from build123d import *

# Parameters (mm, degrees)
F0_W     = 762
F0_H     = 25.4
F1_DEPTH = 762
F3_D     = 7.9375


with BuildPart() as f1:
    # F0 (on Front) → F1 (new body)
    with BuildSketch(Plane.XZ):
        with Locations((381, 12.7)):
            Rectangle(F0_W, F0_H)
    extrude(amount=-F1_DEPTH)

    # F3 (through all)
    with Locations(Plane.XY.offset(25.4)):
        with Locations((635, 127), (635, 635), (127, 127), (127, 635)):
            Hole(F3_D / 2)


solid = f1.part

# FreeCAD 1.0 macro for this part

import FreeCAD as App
import Part
import Sketcher
Q = App.Units.Quantity

doc = App.newDocument("Part")
body = doc.addObject("PartDesign::Body", "Body")

# Sketch on XZ plane
sketch1 = body.newObject("Sketcher::SketchObject", "Sketch")
sketch1.AttachmentSupport = (doc.getObject("XZ_Plane"), [""])
sketch1.MapMode = "FlatFace"
sketch1.addGeometry(Part.LineSegment(App.Vector(0, 25.4, 0), App.Vector(0, 0, 0)), False)
sketch1.addGeometry(Part.LineSegment(App.Vector(0, 0, 0), App.Vector(762, 0, 0)), False)
sketch1.addGeometry(Part.LineSegment(App.Vector(762, 0, 0), App.Vector(762, 25.4, 0)), False)
sketch1.addGeometry(Part.LineSegment(App.Vector(762, 25.4, 0), App.Vector(0, 25.4, 0)), False)
sketch1.addConstraint(Sketcher.Constraint("Coincident", 0, 2, 1, 1))
sketch1.addConstraint(Sketcher.Constraint("Coincident", 1, 2, 2, 1))
sketch1.addConstraint(Sketcher.Constraint("Coincident", 2, 2, 3, 1))
sketch1.addConstraint(Sketcher.Constraint("Coincident", 3, 2, 0, 1))
sketch1.addConstraint(Sketcher.Constraint("Vertical", 0))
sketch1.addConstraint(Sketcher.Constraint("Horizontal", 1))
sketch1.addConstraint(Sketcher.Constraint("Vertical", 2))
sketch1.addConstraint(Sketcher.Constraint("Horizontal", 3))
sketch1.addConstraint(Sketcher.Constraint("Coincident", 0, 2, -1, 1))
sketch1.addConstraint(Sketcher.Constraint("DistanceX", 1, 1, 1, 2, Q("30 in")))
sketch1.addConstraint(Sketcher.Constraint("DistanceY", 0, 2, 0, 1, Q("1 in")))
pad1 = body.newObject("PartDesign::Pad", "Pad")
pad1.Profile = sketch1
pad1.Length = Q("30 in")
pad1.Reversed = True

# Sketch on XY plane
sketch2 = body.newObject("Sketcher::SketchObject", "Sketch001")
sketch2.AttachmentSupport = (doc.getObject("XY_Plane"), [""])
sketch2.MapMode = "FlatFace"
sketch2.AttachmentOffset = App.Placement(App.Vector(0, 0, 1 * 25.4), App.Rotation())
sketch2.addGeometry(Part.Circle(App.Vector(635, 127, 0), App.Vector(0, 0, 1), 3.96875), False)
sketch2.addGeometry(Part.Circle(App.Vector(635, 635, 0), App.Vector(0, 0, 1), 3.96875), False)
sketch2.addGeometry(Part.Circle(App.Vector(127, 127, 0), App.Vector(0, 0, 1), 3.96875), False)
sketch2.addGeometry(Part.Circle(App.Vector(127, 635, 0), App.Vector(0, 0, 1), 3.96875), False)
sketch2.addConstraint(Sketcher.Constraint("Equal", 0, 1))
sketch2.addConstraint(Sketcher.Constraint("Equal", 1, 2))
sketch2.addConstraint(Sketcher.Constraint("Equal", 2, 3))
sketch2.addConstraint(Sketcher.Constraint("Horizontal", 0, 3, 2, 3))
sketch2.addConstraint(Sketcher.Constraint("Horizontal", 1, 3, 3, 3))
sketch2.addConstraint(Sketcher.Constraint("Vertical", 0, 3, 1, 3))
sketch2.addConstraint(Sketcher.Constraint("Vertical", 2, 3, 3, 3))
sketch2.addConstraint(Sketcher.Constraint("Diameter", 0, Q("0.3125 in")))
sketch2.addConstraint(Sketcher.Constraint("DistanceX", -1, 1, 0, 3, Q("25 in")))
sketch2.addConstraint(Sketcher.Constraint("DistanceY", -1, 1, 0, 3, Q("5 in")))
sketch2.addConstraint(Sketcher.Constraint("DistanceY", -1, 1, 1, 3, Q("25 in")))
sketch2.addConstraint(Sketcher.Constraint("DistanceX", -1, 1, 2, 3, Q("5 in")))
doc.recompute()
hole = body.newObject("PartDesign::Hole", "Hole")
hole.Profile = sketch2
hole.ThreadType = "None"
hole.Diameter = Q("0.3125 in")
hole.DepthType = "ThroughAll"

doc.recompute()
